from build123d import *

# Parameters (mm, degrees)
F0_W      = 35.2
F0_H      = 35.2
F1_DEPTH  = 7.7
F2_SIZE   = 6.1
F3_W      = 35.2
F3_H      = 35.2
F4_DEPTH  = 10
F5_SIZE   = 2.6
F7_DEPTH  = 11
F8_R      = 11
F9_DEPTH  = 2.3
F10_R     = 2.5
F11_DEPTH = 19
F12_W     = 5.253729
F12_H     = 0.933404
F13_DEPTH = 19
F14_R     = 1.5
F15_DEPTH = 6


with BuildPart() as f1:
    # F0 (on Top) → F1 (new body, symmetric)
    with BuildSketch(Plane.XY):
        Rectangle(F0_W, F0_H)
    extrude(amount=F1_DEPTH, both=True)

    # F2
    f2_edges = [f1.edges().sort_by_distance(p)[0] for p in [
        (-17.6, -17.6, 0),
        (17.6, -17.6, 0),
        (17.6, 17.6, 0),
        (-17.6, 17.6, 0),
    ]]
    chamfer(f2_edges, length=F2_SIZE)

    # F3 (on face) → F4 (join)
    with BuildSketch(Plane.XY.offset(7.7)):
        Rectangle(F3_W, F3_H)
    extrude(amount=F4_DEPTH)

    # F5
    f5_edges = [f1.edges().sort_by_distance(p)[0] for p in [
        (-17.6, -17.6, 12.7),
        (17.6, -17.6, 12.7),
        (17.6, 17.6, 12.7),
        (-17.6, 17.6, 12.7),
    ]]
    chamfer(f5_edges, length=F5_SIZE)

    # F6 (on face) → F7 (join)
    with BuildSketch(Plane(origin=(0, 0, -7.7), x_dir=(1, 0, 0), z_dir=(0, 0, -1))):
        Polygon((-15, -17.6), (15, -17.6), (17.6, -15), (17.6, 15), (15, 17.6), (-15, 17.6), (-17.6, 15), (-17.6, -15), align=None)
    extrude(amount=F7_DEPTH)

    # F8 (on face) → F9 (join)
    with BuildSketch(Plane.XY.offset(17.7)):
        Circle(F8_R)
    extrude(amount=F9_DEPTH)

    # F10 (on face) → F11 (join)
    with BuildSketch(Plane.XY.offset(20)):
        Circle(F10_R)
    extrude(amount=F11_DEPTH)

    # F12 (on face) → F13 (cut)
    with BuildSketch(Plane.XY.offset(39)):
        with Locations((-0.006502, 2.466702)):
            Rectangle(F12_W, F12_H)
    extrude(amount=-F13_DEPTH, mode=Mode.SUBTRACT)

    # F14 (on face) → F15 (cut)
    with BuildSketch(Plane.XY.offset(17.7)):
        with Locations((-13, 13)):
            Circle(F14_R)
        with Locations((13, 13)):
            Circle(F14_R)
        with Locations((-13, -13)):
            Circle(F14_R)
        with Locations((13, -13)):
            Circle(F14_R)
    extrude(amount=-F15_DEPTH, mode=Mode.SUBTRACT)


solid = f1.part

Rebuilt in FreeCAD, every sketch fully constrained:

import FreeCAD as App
import Part
import Sketcher

V = App.Vector


def edges_at(feature, points):
    """Names of the edges that pass closest to the given points."""
    edges = feature.Shape.Edges
    near = lambda p: min(range(len(edges)), key=lambda i: edges[i].distToShape(Part.Vertex(*p))[0])
    return sorted({f"Edge{near(p) + 1}" for p in points})

doc = App.newDocument("Part")
body = doc.addObject("PartDesign::Body", "Body")

sketch1 = doc.addObject("Sketcher::SketchObject", "Sketch")
body.addObject(sketch1)
sketch1.AttachmentSupport = (doc.XY_Plane, [""])
sketch1.MapMode = "FlatFace"
sketch1.addGeometry(Part.LineSegment(V(-18, 18, 0), V(-18, -18, 0)), False)
sketch1.addGeometry(Part.LineSegment(V(-18, -18, 0), V(18, -18, 0)), False)
sketch1.addGeometry(Part.LineSegment(V(18, -18, 0), V(18, 18, 0)), False)
sketch1.addGeometry(Part.LineSegment(V(18, 18, 0), V(-18, 18, 0)), False)
sketch1.addConstraint(Sketcher.Constraint("Coincident", 0, 2, 1, 1))
sketch1.addConstraint(Sketcher.Constraint("Coincident", 1, 2, 2, 1))
sketch1.addConstraint(Sketcher.Constraint("Coincident", 2, 2, 3, 1))
sketch1.addConstraint(Sketcher.Constraint("Coincident", 3, 2, 0, 1))
sketch1.addConstraint(Sketcher.Constraint("Vertical", 0))
sketch1.addConstraint(Sketcher.Constraint("Horizontal", 1))
sketch1.addConstraint(Sketcher.Constraint("Vertical", 2))
sketch1.addConstraint(Sketcher.Constraint("Horizontal", 3))
sketch1.addConstraint(Sketcher.Constraint("Symmetric", 0, 2, 2, 2, -1, 1))
sketch1.addConstraint(Sketcher.Constraint("Equal", 3, 0))
sketch1.addConstraint(Sketcher.Constraint("DistanceX", 1, 1, 1, 2, 35.2))
pad1 = doc.addObject("PartDesign::Pad", "Pad")
body.addObject(pad1)
pad1.Profile = sketch1
pad1.Length = 15.4
pad1.Midplane = True
doc.recompute()

chamfer = doc.addObject("PartDesign::Chamfer", "Chamfer")
body.addObject(chamfer)
chamfer.Base = (pad1, edges_at(pad1, [
    (-17.6, -17.6, 0),
    (17.6, -17.6, 0),
    (17.6, 17.6, 0),
    (-17.6, 17.6, 0),
]))
chamfer.Size = 6.1

sketch2 = doc.addObject("Sketcher::SketchObject", "Sketch001")
body.addObject(sketch2)
sketch2.AttachmentSupport = (doc.XY_Plane, [""])
sketch2.MapMode = "FlatFace"
sketch2.AttachmentOffset = App.Placement(V(0, 0, 7.7), App.Rotation())
sketch2.addGeometry(Part.LineSegment(V(-18, 18, 0), V(-18, -18, 0)), False)
sketch2.addGeometry(Part.LineSegment(V(-18, -18, 0), V(18, -18, 0)), False)
sketch2.addGeometry(Part.LineSegment(V(18, -18, 0), V(18, 18, 0)), False)
sketch2.addGeometry(Part.LineSegment(V(18, 18, 0), V(-18, 18, 0)), False)
sketch2.addConstraint(Sketcher.Constraint("Coincident", 0, 2, 1, 1))
sketch2.addConstraint(Sketcher.Constraint("Coincident", 1, 2, 2, 1))
sketch2.addConstraint(Sketcher.Constraint("Coincident", 2, 2, 3, 1))
sketch2.addConstraint(Sketcher.Constraint("Coincident", 3, 2, 0, 1))
sketch2.addConstraint(Sketcher.Constraint("Vertical", 0))
sketch2.addConstraint(Sketcher.Constraint("Horizontal", 1))
sketch2.addConstraint(Sketcher.Constraint("Vertical", 2))
sketch2.addConstraint(Sketcher.Constraint("Horizontal", 3))
sketch2.addConstraint(Sketcher.Constraint("Symmetric", 0, 2, 2, 2, -1, 1))
sketch2.addConstraint(Sketcher.Constraint("Equal", 3, 0))
sketch2.addConstraint(Sketcher.Constraint("DistanceX", 1, 1, 1, 2, 35.2))
pad2 = doc.addObject("PartDesign::Pad", "Pad001")
body.addObject(pad2)
pad2.Profile = sketch2
pad2.Length = 10
doc.recompute()

chamfer2 = doc.addObject("PartDesign::Chamfer", "Chamfer001")
body.addObject(chamfer2)
chamfer2.Base = (pad2, edges_at(pad2, [
    (-17.6, -17.6, 12.7),
    (17.6, -17.6, 12.7),
    (17.6, 17.6, 12.7),
    (-17.6, 17.6, 12.7),
]))
chamfer2.Size = 2.6

sketch3 = doc.addObject("Sketcher::SketchObject", "Sketch002")
body.addObject(sketch3)
sketch3.AttachmentSupport = (doc.XY_Plane, [""])
sketch3.MapMode = "FlatFace"
sketch3.AttachmentOffset = App.Placement(V(0, 0, -7.7), App.Rotation())
sketch3.addGeometry(Part.LineSegment(V(-15, 17.6, 0), V(15, 17.6, 0)), False)
sketch3.addGeometry(Part.LineSegment(V(15, 17.6, 0), V(17.6, 15, 0)), False)
sketch3.addGeometry(Part.LineSegment(V(17.6, 15, 0), V(17.6, -15, 0)), False)
sketch3.addGeometry(Part.LineSegment(V(17.6, -15, 0), V(15, -17.6, 0)), False)
sketch3.addGeometry(Part.LineSegment(V(15, -17.6, 0), V(-15, -17.6, 0)), False)
sketch3.addGeometry(Part.LineSegment(V(-15, -17.6, 0), V(-17.6, -15, 0)), False)
sketch3.addGeometry(Part.LineSegment(V(-17.6, -15, 0), V(-17.6, 15, 0)), False)
sketch3.addGeometry(Part.LineSegment(V(-17.6, 15, 0), V(-15, 17.6, 0)), False)
sketch3.addConstraint(Sketcher.Constraint("Coincident", 0, 2, 1, 1))
sketch3.addConstraint(Sketcher.Constraint("Coincident", 1, 2, 2, 1))
sketch3.addConstraint(Sketcher.Constraint("Coincident", 2, 2, 3, 1))
sketch3.addConstraint(Sketcher.Constraint("Coincident", 3, 2, 4, 1))
sketch3.addConstraint(Sketcher.Constraint("Coincident", 4, 2, 5, 1))
sketch3.addConstraint(Sketcher.Constraint("Coincident", 5, 2, 6, 1))
sketch3.addConstraint(Sketcher.Constraint("Coincident", 6, 2, 7, 1))
sketch3.addConstraint(Sketcher.Constraint("Coincident", 7, 2, 0, 1))
sketch3.addConstraint(Sketcher.Constraint("Horizontal", 0))
sketch3.addConstraint(Sketcher.Constraint("Vertical", 2))
sketch3.addConstraint(Sketcher.Constraint("Horizontal", 4))
sketch3.addConstraint(Sketcher.Constraint("Vertical", 6))
sketch3.addConstraint(Sketcher.Constraint("Symmetric", 0, 2, 4, 2, -1, 1))
sketch3.addConstraint(Sketcher.Constraint("Symmetric", 1, 2, 5, 2, -1, 1))
sketch3.addConstraint(Sketcher.Constraint("Perpendicular", 1, 3))
sketch3.addConstraint(Sketcher.Constraint("Perpendicular", 5, 7))
sketch3.addConstraint(Sketcher.Constraint("Horizontal", 2, 2, 5, 2))
sketch3.addConstraint(Sketcher.Constraint("Horizontal", 1, 2, 6, 2))
sketch3.addConstraint(Sketcher.Constraint("Vertical", 0, 2, 3, 2))
sketch3.addConstraint(Sketcher.Constraint("Equal", 4, 2))
sketch3.addConstraint(Sketcher.Constraint("DistanceX", 0, 1, 0, 2, 30.0))
sketch3.addConstraint(Sketcher.Constraint("DistanceY", -1, 1, 0, 2, 17.6))
pad3 = doc.addObject("PartDesign::Pad", "Pad002")
body.addObject(pad3)
pad3.Profile = sketch3
pad3.Length = 11
pad3.Reversed = True

sketch4 = doc.addObject("Sketcher::SketchObject", "Sketch003")
body.addObject(sketch4)
sketch4.AttachmentSupport = (doc.XY_Plane, [""])
sketch4.MapMode = "FlatFace"
sketch4.AttachmentOffset = App.Placement(V(0, 0, 17.7), App.Rotation())
sketch4.addGeometry(Part.Circle(V(0, 0, 0), V(0, 0, 1), 11), False)
sketch4.addConstraint(Sketcher.Constraint("Coincident", 0, 3, -1, 1))
sketch4.addConstraint(Sketcher.Constraint("Diameter", 0, 22.0))
pad4 = doc.addObject("PartDesign::Pad", "Pad003")
body.addObject(pad4)
pad4.Profile = sketch4
pad4.Length = 2.3

sketch5 = doc.addObject("Sketcher::SketchObject", "Sketch004")
body.addObject(sketch5)
sketch5.AttachmentSupport = (doc.XY_Plane, [""])
sketch5.MapMode = "FlatFace"
sketch5.AttachmentOffset = App.Placement(V(0, 0, 20), App.Rotation())
sketch5.addGeometry(Part.Circle(V(0, 0, 0), V(0, 0, 1), 2.5), False)
sketch5.addConstraint(Sketcher.Constraint("Coincident", 0, 3, -1, 1))
sketch5.addConstraint(Sketcher.Constraint("Diameter", 0, 5.0))
pad5 = doc.addObject("PartDesign::Pad", "Pad004")
body.addObject(pad5)
pad5.Profile = sketch5
pad5.Length = 19

sketch6 = doc.addObject("Sketcher::SketchObject", "Sketch005")
body.addObject(sketch6)
sketch6.AttachmentSupport = (doc.XY_Plane, [""])
sketch6.MapMode = "FlatFace"
sketch6.AttachmentOffset = App.Placement(V(0, 0, 39), App.Rotation())
sketch6.addGeometry(Part.LineSegment(V(-2.6, 2.9, 0), V(-2.6, 2, 0)), False)
sketch6.addGeometry(Part.LineSegment(V(-2.6, 2, 0), V(2.6, 2, 0)), False)
sketch6.addGeometry(Part.LineSegment(V(2.6, 2, 0), V(2.6, 2.9, 0)), False)
sketch6.addGeometry(Part.LineSegment(V(2.6, 2.9, 0), V(-2.6, 2.9, 0)), False)
sketch6.addConstraint(Sketcher.Constraint("Coincident", 0, 2, 1, 1))
sketch6.addConstraint(Sketcher.Constraint("Coincident", 1, 2, 2, 1))
sketch6.addConstraint(Sketcher.Constraint("Coincident", 2, 2, 3, 1))
sketch6.addConstraint(Sketcher.Constraint("Coincident", 3, 2, 0, 1))
sketch6.addConstraint(Sketcher.Constraint("Vertical", 0))
sketch6.addConstraint(Sketcher.Constraint("Horizontal", 1))
sketch6.addConstraint(Sketcher.Constraint("Vertical", 2))
sketch6.addConstraint(Sketcher.Constraint("Horizontal", 3))
sketch6.addConstraint(Sketcher.Constraint("DistanceY", -1, 1, 0, 2, 2.0))
sketch6.addConstraint(Sketcher.Constraint("DistanceX", 1, 1, 1, 2, 5.253729))
sketch6.addConstraint(Sketcher.Constraint("DistanceY", 0, 2, 0, 1, 0.933404))
sketch6.addConstraint(Sketcher.Constraint("DistanceX", 0, 2, -1, 1, 2.633367))
pocket1 = doc.addObject("PartDesign::Pocket", "Pocket")
body.addObject(pocket1)
pocket1.Profile = sketch6
pocket1.Length = 19

sketch7 = doc.addObject("Sketcher::SketchObject", "Sketch006")
body.addObject(sketch7)
sketch7.AttachmentSupport = (doc.XY_Plane, [""])
sketch7.MapMode = "FlatFace"
sketch7.AttachmentOffset = App.Placement(V(0, 0, 17.7), App.Rotation())
sketch7.addGeometry(Part.Circle(V(-13, 13, 0), V(0, 0, 1), 1.5), False)
sketch7.addGeometry(Part.Circle(V(13, 13, 0), V(0, 0, 1), 1.5), False)
sketch7.addGeometry(Part.Circle(V(-13, -13, 0), V(0, 0, 1), 1.5), False)
sketch7.addGeometry(Part.Circle(V(13, -13, 0), V(0, 0, 1), 1.5), False)
sketch7.addConstraint(Sketcher.Constraint("Equal", 0, 1))
sketch7.addConstraint(Sketcher.Constraint("Equal", 1, 2))
sketch7.addConstraint(Sketcher.Constraint("Equal", 2, 3))
sketch7.addConstraint(Sketcher.Constraint("Symmetric", 1, 3, 2, 3, -1, 1))
sketch7.addConstraint(Sketcher.Constraint("Symmetric", 0, 3, 3, 3, -1, 1))
sketch7.addConstraint(Sketcher.Constraint("Symmetric", 0, 3, 1, 3, -2))
sketch7.addConstraint(Sketcher.Constraint("Diameter", 0, 3.0))
sketch7.addConstraint(Sketcher.Constraint("DistanceX", 0, 3, -1, 1, 13.0))
sketch7.addConstraint(Sketcher.Constraint("DistanceY", -1, 1, 0, 3, 13.0))
pocket2 = doc.addObject("PartDesign::Pocket", "Pocket001")
body.addObject(pocket2)
pocket2.Profile = sketch7
pocket2.Length = 6

doc.recompute()
